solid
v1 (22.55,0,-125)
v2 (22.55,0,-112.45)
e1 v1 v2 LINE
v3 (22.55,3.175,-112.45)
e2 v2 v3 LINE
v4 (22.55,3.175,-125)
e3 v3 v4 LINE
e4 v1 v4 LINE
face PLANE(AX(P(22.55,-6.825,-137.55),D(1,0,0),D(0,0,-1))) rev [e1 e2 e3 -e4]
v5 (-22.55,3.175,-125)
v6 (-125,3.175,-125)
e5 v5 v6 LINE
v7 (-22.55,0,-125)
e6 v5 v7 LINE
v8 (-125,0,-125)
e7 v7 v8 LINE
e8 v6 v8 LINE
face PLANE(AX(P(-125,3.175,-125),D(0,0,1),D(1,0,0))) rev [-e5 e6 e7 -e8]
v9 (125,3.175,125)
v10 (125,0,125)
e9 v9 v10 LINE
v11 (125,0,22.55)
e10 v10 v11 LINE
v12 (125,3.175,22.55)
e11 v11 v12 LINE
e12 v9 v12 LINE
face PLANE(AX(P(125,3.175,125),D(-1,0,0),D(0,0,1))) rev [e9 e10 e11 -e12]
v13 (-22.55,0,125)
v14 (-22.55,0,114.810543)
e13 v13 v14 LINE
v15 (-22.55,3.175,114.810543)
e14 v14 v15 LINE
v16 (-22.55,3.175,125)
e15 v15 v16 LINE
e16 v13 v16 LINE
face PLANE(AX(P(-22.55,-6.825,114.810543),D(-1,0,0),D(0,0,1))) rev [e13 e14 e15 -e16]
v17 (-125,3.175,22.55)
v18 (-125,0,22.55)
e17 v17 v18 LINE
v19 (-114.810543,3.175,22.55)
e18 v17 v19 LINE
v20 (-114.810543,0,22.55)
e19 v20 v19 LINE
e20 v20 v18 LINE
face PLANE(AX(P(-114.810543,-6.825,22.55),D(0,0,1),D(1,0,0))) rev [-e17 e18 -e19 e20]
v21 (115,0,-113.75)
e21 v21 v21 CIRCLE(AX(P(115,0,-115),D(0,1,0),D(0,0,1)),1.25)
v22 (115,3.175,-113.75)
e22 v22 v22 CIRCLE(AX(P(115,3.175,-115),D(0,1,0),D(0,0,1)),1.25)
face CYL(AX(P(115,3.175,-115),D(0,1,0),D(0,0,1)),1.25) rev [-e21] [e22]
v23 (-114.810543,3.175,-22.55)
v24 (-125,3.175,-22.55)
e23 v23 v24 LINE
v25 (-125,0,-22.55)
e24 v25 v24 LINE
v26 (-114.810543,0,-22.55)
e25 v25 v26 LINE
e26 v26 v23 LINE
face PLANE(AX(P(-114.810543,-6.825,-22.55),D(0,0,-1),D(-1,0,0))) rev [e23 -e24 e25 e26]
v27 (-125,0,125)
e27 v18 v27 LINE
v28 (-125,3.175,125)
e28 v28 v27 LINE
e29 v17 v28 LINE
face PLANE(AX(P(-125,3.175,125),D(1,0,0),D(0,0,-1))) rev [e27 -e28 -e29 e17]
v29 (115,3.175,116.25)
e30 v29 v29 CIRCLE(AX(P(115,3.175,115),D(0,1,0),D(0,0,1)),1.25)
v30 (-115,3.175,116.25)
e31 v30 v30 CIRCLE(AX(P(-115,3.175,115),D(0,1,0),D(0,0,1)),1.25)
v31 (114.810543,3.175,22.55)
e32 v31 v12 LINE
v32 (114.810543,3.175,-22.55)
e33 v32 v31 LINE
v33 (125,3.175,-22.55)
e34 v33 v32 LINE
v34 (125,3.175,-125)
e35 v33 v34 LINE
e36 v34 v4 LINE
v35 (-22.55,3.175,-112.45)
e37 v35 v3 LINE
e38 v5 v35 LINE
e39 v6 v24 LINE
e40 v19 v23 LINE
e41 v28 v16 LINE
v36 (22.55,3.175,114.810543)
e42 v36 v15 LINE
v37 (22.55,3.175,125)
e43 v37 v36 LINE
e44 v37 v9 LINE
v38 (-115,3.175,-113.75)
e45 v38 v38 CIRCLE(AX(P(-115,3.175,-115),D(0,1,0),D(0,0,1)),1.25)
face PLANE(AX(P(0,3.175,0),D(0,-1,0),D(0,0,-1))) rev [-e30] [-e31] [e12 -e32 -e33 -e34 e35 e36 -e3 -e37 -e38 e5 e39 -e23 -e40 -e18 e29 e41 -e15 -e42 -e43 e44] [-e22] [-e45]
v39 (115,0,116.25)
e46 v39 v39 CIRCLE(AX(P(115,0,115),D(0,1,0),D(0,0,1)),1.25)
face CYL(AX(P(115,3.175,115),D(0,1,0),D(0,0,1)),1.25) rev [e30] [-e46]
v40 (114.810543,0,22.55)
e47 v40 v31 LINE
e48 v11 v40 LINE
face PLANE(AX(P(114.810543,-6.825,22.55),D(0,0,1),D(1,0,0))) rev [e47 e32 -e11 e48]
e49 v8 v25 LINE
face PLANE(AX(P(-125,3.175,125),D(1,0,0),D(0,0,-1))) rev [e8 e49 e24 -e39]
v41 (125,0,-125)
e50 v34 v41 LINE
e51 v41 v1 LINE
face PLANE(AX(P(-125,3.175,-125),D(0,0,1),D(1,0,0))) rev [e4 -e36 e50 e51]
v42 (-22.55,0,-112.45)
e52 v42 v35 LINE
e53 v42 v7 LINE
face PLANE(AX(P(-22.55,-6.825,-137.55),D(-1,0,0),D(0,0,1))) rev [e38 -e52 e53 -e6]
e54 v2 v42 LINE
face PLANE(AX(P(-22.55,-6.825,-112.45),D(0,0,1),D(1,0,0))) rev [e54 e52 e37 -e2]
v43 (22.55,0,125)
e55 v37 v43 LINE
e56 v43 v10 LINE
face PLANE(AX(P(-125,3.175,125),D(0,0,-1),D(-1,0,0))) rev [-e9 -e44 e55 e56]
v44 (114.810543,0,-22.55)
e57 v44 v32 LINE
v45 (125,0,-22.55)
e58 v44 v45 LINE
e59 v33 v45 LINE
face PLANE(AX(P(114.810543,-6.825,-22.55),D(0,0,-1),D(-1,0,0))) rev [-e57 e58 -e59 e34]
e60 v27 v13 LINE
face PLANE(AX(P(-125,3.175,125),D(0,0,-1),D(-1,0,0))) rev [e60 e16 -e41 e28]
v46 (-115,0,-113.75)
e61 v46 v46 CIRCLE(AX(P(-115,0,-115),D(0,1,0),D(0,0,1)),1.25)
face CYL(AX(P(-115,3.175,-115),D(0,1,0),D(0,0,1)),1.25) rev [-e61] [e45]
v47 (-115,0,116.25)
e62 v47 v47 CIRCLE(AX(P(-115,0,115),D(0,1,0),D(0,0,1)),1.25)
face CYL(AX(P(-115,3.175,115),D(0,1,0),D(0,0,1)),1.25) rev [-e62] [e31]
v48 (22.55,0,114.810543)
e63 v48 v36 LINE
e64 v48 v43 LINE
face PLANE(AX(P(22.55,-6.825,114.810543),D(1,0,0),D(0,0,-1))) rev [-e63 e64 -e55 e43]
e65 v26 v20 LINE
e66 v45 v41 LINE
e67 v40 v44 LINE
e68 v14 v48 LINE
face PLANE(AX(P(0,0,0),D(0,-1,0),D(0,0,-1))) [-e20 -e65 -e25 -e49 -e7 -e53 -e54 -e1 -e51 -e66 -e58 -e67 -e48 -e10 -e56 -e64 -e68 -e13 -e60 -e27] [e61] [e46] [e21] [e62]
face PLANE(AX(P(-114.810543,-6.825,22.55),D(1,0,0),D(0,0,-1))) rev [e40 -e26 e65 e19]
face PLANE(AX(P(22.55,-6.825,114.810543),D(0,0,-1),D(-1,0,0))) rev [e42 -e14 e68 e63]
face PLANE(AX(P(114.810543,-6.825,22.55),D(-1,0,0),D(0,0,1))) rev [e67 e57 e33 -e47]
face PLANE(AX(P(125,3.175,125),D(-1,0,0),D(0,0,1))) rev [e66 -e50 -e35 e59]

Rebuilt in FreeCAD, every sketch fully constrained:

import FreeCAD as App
import Part
import Sketcher


def add_polygon(sketch, points):
    """Adds a closed chain of lines whose ends are joined by coincident constraints."""
    first, n = sketch.GeometryCount, len(points)
    for a, b in zip(points, points[1:] + points[:1]):
        sketch.addGeometry(Part.LineSegment(App.Vector(*a, 0), App.Vector(*b, 0)), False)
    for i in range(n):
        sketch.addConstraint(Sketcher.Constraint("Coincident", first + i, 2, first + (i + 1) % n, 1))

doc = App.newDocument("Part")
params = doc.addObject("Spreadsheet::Sheet", "Params")
for row, (alias, value) in enumerate([
    ("sketch1_width", "250 mm"),
    ("pad1_length", "3.175 mm"),
    ("sketch2_width", "45.1 mm"),
    ("sketch2_height", "25.1 mm"),
    ("pocket1_length", "10 mm"),
    ("sketch3_diameter", "2.5 mm"),
    ("hole_diameter", "2.5 mm"),
    ("sketch4_diameter", "2.5 mm"),
    ("hole2_diameter", "2.5 mm"),
], start=1):
    params.set(f"A{row}", alias)
    params.set(f"B{row}", "=" + value)
    params.setAlias(f"B{row}", alias)

body = doc.addObject("PartDesign::Body", "Body")

# Sketch on XZ plane
sketch1 = body.newObject("Sketcher::SketchObject", "Sketch")
sketch1.AttachmentSupport = (doc.getObject("XZ_Plane"), [""])
sketch1.MapMode = "FlatFace"
add_polygon(sketch1, [(-125, -125), (-125, 125), (125, 125), (125, -125)])  # lines 0-3
sketch1.addConstraint([
    Sketcher.Constraint("Vertical", 0),
    Sketcher.Constraint("Horizontal", 1),
    Sketcher.Constraint("Vertical", 2),
    Sketcher.Constraint("Horizontal", 3),
    Sketcher.Constraint("Symmetric", 0, 2, 2, 2, -1, 1),
    Sketcher.Constraint("Equal", 3, 0),
    Sketcher.Constraint("DistanceX", 1, 1, 1, 2, 250.0),
])
sketch1.setExpression("Constraints[10]", "Params.sketch1_width")
pad1 = body.newObject("PartDesign::Pad", "Pad")
pad1.Profile = sketch1
pad1.setExpression("Length", "Params.pad1_length")
pad1.Reversed = True

# Sketch on XZ plane
sketch2 = body.newObject("Sketcher::SketchObject", "Sketch001")
sketch2.AttachmentSupport = (doc.getObject("XZ_Plane"), [""])
sketch2.MapMode = "FlatFace"
sketch2.AttachmentOffset = App.Placement(App.Vector(0, 0, -3.175), App.Rotation())
add_polygon(sketch2, [(-22.55, -137.55), (-22.55, -112.45), (22.55, -112.45), (22.55, -137.55)])  # lines 0-3
add_polygon(sketch2, [(-135.189457, -22.55), (-135.189457, 22.55), (-114.810543, 22.55), (-114.810543, -22.55)])  # lines 4-7
add_polygon(sketch2, [(114.810543, -22.55), (114.810543, 22.55), (135.189457, 22.55), (135.189457, -22.55)])  # lines 8-11
add_polygon(sketch2, [(-22.55, 114.810543), (-22.55, 135.189457), (22.55, 135.189457), (22.55, 114.810543)])  # lines 12-15
sketch2.addConstraint([
    Sketcher.Constraint("Vertical", 0),
    Sketcher.Constraint("Horizontal", 1),
    Sketcher.Constraint("Vertical", 2),
    Sketcher.Constraint("Horizontal", 3),
    Sketcher.Constraint("Vertical", 4),
    Sketcher.Constraint("Horizontal", 5),
    Sketcher.Constraint("Vertical", 6),
    Sketcher.Constraint("Horizontal", 7),
    Sketcher.Constraint("Vertical", 8),
    Sketcher.Constraint("Horizontal", 9),
    Sketcher.Constraint("Vertical", 10),
    Sketcher.Constraint("Horizontal", 11),
    Sketcher.Constraint("Vertical", 12),
    Sketcher.Constraint("Horizontal", 13),
    Sketcher.Constraint("Vertical", 14),
    Sketcher.Constraint("Horizontal", 15),
    Sketcher.Constraint("Symmetric", 6, 2, 8, 2, -1, 1),
    Sketcher.Constraint("Symmetric", 4, 2, 10, 2, -1, 1),
    Sketcher.Constraint("Horizontal", 5, 2, 8, 2),
    Sketcher.Constraint("Vertical", 3, 2, 12, 2),
    Sketcher.Constraint("Vertical", 2, 2, 13, 2),
    Sketcher.Constraint("Equal", 15, 4),
    Sketcher.Constraint("Equal", 11, 12),
    Sketcher.Constraint("DistanceX", 1, 1, 1, 2, 45.1),
    Sketcher.Constraint("DistanceY", 0, 1, 0, 2, 25.1),
    Sketcher.Constraint("DistanceY", 0, 2, 4, 2, 135.0),
    Sketcher.Constraint("DistanceX", 0, 2, -1, 1, 22.55),
    Sketcher.Constraint("DistanceX", 5, 1, 5, 2, 20.378913),
    Sketcher.Constraint("DistanceX", 4, 2, -1, 1, 135.189457),
    Sketcher.Constraint("DistanceY", -1, 1, 12, 2, 135.189457),
])
sketch2.setExpression("Constraints[39]", "Params.sketch2_width")
sketch2.setExpression("Constraints[40]", "Params.sketch2_height")
pocket1 = body.newObject("PartDesign::Pocket", "Pocket")
pocket1.Profile = sketch2
pocket1.setExpression("Length", "Params.pocket1_length")
pocket1.Reversed = True

# Sketch on XZ plane
sketch3 = body.newObject("Sketcher::SketchObject", "Sketch002")
sketch3.AttachmentSupport = (doc.getObject("XZ_Plane"), [""])
sketch3.MapMode = "FlatFace"
sketch3.AttachmentOffset = App.Placement(App.Vector(0, 0, -3.175), App.Rotation())
sketch3.addGeometry(Part.Circle(App.Vector(-115, -115, 0), App.Vector(0, 0, 1), 1.25), False)
sketch3.addConstraint([
    Sketcher.Constraint("Diameter", 0, 2.5),
    Sketcher.Constraint("DistanceX", 0, 3, -1, 1, 115.0),
    Sketcher.Constraint("DistanceY", 0, 3, -1, 1, 115.0),
])
sketch3.setExpression("Constraints[0]", "Params.sketch3_diameter")
doc.recompute()
hole = body.newObject("PartDesign::Hole", "Hole")
hole.Profile = sketch3
hole.ThreadType = "None"
hole.setExpression("Diameter", "Params.hole_diameter")
hole.DepthType = "ThroughAll"
hole.Reversed = True

# Sketch on XZ plane
sketch4 = body.newObject("Sketcher::SketchObject", "Sketch003")
sketch4.AttachmentSupport = (doc.getObject("XZ_Plane"), [""])
sketch4.MapMode = "FlatFace"
sketch4.AttachmentOffset = App.Placement(App.Vector(0, 0, -3.175), App.Rotation())
sketch4.addGeometry([
    Part.Circle(App.Vector(115, -115, 0), App.Vector(0, 0, 1), 1.25),
    Part.Circle(App.Vector(115, 115, 0), App.Vector(0, 0, 1), 1.25),
    Part.Circle(App.Vector(-115, 115, 0), App.Vector(0, 0, 1), 1.25),
], False)
sketch4.addConstraint([
    Sketcher.Constraint("Equal", 0, 1),
    Sketcher.Constraint("Equal", 1, 2),
    Sketcher.Constraint("Symmetric", 0, 3, 2, 3, -1, 1),
    Sketcher.Constraint("Symmetric", 1, 3, 2, 3, -2),
    Sketcher.Constraint("Diameter", 0, 2.5),
    Sketcher.Constraint("DistanceX", -1, 1, 0, 3, 115.0),
    Sketcher.Constraint("DistanceY", 0, 3, -1, 1, 115.0),
])
sketch4.setExpression("Constraints[4]", "Params.sketch4_diameter")
doc.recompute()
hole2 = body.newObject("PartDesign::Hole", "Hole001")
hole2.Profile = sketch4
hole2.ThreadType = "None"
hole2.setExpression("Diameter", "Params.hole2_diameter")
hole2.DepthType = "ThroughAll"
hole2.Reversed = True

doc.recompute()
